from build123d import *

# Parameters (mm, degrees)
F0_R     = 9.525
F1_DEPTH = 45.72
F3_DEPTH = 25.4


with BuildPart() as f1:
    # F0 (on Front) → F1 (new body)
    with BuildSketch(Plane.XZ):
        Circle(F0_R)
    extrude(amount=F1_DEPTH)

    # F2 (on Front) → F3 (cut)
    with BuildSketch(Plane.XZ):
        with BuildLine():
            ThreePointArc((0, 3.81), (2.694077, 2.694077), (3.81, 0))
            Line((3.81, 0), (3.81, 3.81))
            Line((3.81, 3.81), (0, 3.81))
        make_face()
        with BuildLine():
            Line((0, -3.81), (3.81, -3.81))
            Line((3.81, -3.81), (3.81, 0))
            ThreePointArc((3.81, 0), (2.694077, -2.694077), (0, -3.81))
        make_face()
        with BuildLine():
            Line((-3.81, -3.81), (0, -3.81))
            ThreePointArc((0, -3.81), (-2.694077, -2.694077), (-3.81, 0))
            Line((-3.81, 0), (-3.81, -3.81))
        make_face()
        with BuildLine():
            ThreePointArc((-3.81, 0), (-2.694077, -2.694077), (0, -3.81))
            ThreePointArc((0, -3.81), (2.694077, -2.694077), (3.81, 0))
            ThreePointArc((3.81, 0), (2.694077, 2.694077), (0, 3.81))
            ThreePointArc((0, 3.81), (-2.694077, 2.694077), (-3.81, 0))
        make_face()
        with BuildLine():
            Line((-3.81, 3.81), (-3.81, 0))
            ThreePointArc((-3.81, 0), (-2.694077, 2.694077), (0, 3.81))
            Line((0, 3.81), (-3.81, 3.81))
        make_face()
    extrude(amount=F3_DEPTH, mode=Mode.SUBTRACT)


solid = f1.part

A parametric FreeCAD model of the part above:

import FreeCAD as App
import Part
import Sketcher
Q = App.Units.Quantity


def add_polygon(sketch, points):
    """Adds a closed chain of lines whose ends are joined by coincident constraints."""
    first, n = sketch.GeometryCount, len(points)
    for a, b in zip(points, points[1:] + points[:1]):
        sketch.addGeometry(Part.LineSegment(App.Vector(*a, 0), App.Vector(*b, 0)), False)
    for i in range(n):
        sketch.addConstraint(Sketcher.Constraint("Coincident", first + i, 2, first + (i + 1) % n, 1))

doc = App.newDocument("Part")
body = doc.addObject("PartDesign::Body", "Body")

# Sketch on XZ plane
sketch1 = body.newObject("Sketcher::SketchObject", "Sketch")
sketch1.AttachmentSupport = (doc.getObject("XZ_Plane"), [""])
sketch1.MapMode = "FlatFace"
sketch1.addGeometry(Part.Circle(App.Vector(0, 0, 0), App.Vector(0, 0, 1), 10), False)
sketch1.addConstraint([
    Sketcher.Constraint("Coincident", 0, 3, -1, 1),
    Sketcher.Constraint("Diameter", 0, Q("0.75 in")),
])
pad1 = body.newObject("PartDesign::Pad", "Pad")
pad1.Profile = sketch1
pad1.Length = Q("1.8 in")

# Sketch on XZ plane
sketch2 = body.newObject("Sketcher::SketchObject", "Sketch001")
sketch2.AttachmentSupport = (doc.getObject("XZ_Plane"), [""])
sketch2.MapMode = "FlatFace"
add_polygon(sketch2, [(4, 4), (-4, 4), (-4, -4), (4, -4)])  # lines 0-3
sketch2.addConstraint([
    Sketcher.Constraint("Horizontal", 0),
    Sketcher.Constraint("Vertical", 1),
    Sketcher.Constraint("Horizontal", 2),
    Sketcher.Constraint("Vertical", 3),
    Sketcher.Constraint("Symmetric", 0, 2, 2, 2, -1, 1),
    Sketcher.Constraint("Equal", 2, 1),
    Sketcher.Constraint("DistanceX", 0, 2, 0, 1, Q("0.3 in")),
])
pocket1 = body.newObject("PartDesign::Pocket", "Pocket")
pocket1.Profile = sketch2
pocket1.Length = Q("1 in")
pocket1.Reversed = True

doc.recompute()
